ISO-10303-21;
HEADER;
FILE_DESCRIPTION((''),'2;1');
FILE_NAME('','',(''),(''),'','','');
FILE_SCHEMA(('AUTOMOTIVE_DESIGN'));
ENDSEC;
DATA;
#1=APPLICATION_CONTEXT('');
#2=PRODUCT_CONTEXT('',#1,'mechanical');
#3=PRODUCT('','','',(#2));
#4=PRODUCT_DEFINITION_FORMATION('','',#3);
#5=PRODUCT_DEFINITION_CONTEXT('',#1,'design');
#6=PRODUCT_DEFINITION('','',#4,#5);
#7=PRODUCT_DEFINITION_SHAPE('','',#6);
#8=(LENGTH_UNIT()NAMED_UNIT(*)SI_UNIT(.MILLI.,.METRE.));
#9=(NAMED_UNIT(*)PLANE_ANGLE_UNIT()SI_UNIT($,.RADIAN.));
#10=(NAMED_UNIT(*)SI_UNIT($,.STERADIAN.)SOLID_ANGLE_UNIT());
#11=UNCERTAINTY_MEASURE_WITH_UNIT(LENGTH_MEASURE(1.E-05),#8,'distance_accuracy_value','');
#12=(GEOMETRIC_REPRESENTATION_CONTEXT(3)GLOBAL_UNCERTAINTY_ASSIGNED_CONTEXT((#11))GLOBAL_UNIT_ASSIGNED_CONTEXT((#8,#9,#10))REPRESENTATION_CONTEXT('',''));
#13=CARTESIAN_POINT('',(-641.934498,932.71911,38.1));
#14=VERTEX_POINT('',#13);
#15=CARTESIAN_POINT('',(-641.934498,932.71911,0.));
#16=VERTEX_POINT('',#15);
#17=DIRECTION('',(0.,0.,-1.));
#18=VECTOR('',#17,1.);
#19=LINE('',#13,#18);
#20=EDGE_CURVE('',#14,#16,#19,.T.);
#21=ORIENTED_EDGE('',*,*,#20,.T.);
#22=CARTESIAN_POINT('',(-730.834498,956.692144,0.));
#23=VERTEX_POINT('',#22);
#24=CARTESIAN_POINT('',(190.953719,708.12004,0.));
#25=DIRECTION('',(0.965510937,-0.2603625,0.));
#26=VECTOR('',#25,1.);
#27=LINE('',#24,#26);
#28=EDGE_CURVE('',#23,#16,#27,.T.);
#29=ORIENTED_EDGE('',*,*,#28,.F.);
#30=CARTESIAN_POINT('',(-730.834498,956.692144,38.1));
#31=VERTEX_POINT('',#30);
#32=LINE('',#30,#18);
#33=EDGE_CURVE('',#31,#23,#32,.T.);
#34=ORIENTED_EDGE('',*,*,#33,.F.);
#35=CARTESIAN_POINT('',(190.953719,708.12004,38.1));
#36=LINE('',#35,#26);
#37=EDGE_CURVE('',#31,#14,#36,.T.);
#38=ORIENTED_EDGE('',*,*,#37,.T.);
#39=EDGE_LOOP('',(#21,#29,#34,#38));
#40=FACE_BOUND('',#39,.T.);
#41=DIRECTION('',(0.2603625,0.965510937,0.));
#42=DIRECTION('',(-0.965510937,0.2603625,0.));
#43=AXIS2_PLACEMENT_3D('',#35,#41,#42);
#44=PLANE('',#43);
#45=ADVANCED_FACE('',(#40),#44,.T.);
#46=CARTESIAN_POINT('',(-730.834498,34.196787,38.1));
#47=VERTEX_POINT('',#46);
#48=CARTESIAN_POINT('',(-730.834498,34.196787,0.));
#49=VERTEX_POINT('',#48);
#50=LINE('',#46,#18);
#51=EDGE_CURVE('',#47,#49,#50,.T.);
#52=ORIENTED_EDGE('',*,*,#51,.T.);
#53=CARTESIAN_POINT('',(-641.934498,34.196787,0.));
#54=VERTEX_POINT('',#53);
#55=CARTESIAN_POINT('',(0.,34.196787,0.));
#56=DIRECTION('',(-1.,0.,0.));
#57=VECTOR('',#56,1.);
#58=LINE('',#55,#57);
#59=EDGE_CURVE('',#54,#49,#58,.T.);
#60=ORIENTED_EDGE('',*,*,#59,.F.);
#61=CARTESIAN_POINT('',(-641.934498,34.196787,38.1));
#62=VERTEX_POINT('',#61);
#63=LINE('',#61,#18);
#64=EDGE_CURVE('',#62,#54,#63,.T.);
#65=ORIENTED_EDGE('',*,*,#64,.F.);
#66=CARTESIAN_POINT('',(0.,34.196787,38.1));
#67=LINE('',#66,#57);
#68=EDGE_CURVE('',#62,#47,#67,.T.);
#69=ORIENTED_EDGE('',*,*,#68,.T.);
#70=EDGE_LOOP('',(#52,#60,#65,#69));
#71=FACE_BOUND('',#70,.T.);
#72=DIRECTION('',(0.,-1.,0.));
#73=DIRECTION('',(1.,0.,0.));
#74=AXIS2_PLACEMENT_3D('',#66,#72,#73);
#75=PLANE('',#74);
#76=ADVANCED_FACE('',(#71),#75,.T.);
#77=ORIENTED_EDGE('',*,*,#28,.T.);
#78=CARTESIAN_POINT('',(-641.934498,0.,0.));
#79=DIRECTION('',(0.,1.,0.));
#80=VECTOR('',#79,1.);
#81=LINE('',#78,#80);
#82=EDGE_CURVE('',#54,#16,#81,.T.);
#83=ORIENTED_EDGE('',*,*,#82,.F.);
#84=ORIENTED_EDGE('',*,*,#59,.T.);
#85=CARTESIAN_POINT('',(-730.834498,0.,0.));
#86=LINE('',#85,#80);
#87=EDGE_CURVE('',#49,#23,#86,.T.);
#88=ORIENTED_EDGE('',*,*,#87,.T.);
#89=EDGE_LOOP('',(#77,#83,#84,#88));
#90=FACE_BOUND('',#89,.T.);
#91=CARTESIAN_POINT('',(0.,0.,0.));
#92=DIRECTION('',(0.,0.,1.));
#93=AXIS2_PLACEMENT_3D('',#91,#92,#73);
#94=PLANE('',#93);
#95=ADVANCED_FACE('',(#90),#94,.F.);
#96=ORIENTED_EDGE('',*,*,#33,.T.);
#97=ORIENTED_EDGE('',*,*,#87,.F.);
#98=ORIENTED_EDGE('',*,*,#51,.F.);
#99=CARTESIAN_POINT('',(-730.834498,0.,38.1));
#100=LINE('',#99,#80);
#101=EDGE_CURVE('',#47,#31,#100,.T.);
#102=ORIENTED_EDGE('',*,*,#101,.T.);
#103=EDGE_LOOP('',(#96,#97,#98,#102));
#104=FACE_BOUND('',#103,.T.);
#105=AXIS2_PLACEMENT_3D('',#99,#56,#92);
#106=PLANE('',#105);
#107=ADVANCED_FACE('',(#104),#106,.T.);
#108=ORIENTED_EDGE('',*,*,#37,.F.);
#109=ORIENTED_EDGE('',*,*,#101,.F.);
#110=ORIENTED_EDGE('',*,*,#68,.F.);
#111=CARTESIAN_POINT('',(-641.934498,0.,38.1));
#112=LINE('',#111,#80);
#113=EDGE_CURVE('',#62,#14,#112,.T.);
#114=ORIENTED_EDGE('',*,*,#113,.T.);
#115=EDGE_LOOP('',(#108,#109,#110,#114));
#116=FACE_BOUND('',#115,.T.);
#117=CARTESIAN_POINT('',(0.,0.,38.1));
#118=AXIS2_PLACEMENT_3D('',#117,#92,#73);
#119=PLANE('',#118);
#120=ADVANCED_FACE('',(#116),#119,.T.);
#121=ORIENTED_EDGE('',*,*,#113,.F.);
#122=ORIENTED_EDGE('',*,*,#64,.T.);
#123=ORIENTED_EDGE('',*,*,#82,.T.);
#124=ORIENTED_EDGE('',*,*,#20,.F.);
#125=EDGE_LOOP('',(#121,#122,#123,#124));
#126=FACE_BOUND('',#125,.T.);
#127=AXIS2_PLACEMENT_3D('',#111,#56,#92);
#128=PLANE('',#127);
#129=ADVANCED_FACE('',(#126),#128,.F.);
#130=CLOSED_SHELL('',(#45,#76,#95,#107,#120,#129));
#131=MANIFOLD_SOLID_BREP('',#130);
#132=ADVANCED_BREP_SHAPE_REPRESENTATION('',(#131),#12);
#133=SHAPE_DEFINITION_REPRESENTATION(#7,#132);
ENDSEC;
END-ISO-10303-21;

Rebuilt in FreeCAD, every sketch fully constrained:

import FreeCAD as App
import Part
import Sketcher
Q = App.Units.Quantity

doc = App.newDocument("Part")
body = doc.addObject("PartDesign::Body", "Body")

# Sketch on XY plane
sketch1 = doc.addObject("Sketcher::SketchObject", "Sketch")
body.addObject(sketch1)
sketch1.AttachmentSupport = (doc.XY_Plane, [""])
sketch1.MapMode = "FlatFace"
sketch1.addGeometry([
    Part.LineSegment(App.Vector(-731, 34, 0), App.Vector(-642, 34, 0)),
    Part.LineSegment(App.Vector(-642, 34, 0), App.Vector(-642, 933, 0)),
    Part.LineSegment(App.Vector(-642, 933, 0), App.Vector(-731, 957, 0)),
    Part.LineSegment(App.Vector(-731, 957, 0), App.Vector(-731, 34, 0)),
], False)
sketch1.addConstraint([
    Sketcher.Constraint("Coincident", 0, 2, 1, 1),
    Sketcher.Constraint("Coincident", 1, 2, 2, 1),
    Sketcher.Constraint("Coincident", 2, 2, 3, 1),
    Sketcher.Constraint("Coincident", 3, 2, 0, 1),
    Sketcher.Constraint("Horizontal", 0),
    Sketcher.Constraint("Vertical", 1),
    Sketcher.Constraint("Vertical", 3),
    Sketcher.Constraint("DistanceX", 0, 1, 0, 2, Q("3.5 in")),
    Sketcher.Constraint("Distance", 2, Q("92.075601 mm")),
    Sketcher.Constraint("DistanceX", 0, 2, -1, 1, Q("641.934498 mm")),
    Sketcher.Constraint("DistanceY", 1, 1, 1, 2, Q("898.522323 mm")),
    Sketcher.Constraint("DistanceY", -1, 1, 1, 2, Q("932.71911 mm")),
])
pad1 = doc.addObject("PartDesign::Pad", "Pad")
body.addObject(pad1)
pad1.Profile = sketch1
pad1.Length = Q("1.5 in")

doc.recompute()
